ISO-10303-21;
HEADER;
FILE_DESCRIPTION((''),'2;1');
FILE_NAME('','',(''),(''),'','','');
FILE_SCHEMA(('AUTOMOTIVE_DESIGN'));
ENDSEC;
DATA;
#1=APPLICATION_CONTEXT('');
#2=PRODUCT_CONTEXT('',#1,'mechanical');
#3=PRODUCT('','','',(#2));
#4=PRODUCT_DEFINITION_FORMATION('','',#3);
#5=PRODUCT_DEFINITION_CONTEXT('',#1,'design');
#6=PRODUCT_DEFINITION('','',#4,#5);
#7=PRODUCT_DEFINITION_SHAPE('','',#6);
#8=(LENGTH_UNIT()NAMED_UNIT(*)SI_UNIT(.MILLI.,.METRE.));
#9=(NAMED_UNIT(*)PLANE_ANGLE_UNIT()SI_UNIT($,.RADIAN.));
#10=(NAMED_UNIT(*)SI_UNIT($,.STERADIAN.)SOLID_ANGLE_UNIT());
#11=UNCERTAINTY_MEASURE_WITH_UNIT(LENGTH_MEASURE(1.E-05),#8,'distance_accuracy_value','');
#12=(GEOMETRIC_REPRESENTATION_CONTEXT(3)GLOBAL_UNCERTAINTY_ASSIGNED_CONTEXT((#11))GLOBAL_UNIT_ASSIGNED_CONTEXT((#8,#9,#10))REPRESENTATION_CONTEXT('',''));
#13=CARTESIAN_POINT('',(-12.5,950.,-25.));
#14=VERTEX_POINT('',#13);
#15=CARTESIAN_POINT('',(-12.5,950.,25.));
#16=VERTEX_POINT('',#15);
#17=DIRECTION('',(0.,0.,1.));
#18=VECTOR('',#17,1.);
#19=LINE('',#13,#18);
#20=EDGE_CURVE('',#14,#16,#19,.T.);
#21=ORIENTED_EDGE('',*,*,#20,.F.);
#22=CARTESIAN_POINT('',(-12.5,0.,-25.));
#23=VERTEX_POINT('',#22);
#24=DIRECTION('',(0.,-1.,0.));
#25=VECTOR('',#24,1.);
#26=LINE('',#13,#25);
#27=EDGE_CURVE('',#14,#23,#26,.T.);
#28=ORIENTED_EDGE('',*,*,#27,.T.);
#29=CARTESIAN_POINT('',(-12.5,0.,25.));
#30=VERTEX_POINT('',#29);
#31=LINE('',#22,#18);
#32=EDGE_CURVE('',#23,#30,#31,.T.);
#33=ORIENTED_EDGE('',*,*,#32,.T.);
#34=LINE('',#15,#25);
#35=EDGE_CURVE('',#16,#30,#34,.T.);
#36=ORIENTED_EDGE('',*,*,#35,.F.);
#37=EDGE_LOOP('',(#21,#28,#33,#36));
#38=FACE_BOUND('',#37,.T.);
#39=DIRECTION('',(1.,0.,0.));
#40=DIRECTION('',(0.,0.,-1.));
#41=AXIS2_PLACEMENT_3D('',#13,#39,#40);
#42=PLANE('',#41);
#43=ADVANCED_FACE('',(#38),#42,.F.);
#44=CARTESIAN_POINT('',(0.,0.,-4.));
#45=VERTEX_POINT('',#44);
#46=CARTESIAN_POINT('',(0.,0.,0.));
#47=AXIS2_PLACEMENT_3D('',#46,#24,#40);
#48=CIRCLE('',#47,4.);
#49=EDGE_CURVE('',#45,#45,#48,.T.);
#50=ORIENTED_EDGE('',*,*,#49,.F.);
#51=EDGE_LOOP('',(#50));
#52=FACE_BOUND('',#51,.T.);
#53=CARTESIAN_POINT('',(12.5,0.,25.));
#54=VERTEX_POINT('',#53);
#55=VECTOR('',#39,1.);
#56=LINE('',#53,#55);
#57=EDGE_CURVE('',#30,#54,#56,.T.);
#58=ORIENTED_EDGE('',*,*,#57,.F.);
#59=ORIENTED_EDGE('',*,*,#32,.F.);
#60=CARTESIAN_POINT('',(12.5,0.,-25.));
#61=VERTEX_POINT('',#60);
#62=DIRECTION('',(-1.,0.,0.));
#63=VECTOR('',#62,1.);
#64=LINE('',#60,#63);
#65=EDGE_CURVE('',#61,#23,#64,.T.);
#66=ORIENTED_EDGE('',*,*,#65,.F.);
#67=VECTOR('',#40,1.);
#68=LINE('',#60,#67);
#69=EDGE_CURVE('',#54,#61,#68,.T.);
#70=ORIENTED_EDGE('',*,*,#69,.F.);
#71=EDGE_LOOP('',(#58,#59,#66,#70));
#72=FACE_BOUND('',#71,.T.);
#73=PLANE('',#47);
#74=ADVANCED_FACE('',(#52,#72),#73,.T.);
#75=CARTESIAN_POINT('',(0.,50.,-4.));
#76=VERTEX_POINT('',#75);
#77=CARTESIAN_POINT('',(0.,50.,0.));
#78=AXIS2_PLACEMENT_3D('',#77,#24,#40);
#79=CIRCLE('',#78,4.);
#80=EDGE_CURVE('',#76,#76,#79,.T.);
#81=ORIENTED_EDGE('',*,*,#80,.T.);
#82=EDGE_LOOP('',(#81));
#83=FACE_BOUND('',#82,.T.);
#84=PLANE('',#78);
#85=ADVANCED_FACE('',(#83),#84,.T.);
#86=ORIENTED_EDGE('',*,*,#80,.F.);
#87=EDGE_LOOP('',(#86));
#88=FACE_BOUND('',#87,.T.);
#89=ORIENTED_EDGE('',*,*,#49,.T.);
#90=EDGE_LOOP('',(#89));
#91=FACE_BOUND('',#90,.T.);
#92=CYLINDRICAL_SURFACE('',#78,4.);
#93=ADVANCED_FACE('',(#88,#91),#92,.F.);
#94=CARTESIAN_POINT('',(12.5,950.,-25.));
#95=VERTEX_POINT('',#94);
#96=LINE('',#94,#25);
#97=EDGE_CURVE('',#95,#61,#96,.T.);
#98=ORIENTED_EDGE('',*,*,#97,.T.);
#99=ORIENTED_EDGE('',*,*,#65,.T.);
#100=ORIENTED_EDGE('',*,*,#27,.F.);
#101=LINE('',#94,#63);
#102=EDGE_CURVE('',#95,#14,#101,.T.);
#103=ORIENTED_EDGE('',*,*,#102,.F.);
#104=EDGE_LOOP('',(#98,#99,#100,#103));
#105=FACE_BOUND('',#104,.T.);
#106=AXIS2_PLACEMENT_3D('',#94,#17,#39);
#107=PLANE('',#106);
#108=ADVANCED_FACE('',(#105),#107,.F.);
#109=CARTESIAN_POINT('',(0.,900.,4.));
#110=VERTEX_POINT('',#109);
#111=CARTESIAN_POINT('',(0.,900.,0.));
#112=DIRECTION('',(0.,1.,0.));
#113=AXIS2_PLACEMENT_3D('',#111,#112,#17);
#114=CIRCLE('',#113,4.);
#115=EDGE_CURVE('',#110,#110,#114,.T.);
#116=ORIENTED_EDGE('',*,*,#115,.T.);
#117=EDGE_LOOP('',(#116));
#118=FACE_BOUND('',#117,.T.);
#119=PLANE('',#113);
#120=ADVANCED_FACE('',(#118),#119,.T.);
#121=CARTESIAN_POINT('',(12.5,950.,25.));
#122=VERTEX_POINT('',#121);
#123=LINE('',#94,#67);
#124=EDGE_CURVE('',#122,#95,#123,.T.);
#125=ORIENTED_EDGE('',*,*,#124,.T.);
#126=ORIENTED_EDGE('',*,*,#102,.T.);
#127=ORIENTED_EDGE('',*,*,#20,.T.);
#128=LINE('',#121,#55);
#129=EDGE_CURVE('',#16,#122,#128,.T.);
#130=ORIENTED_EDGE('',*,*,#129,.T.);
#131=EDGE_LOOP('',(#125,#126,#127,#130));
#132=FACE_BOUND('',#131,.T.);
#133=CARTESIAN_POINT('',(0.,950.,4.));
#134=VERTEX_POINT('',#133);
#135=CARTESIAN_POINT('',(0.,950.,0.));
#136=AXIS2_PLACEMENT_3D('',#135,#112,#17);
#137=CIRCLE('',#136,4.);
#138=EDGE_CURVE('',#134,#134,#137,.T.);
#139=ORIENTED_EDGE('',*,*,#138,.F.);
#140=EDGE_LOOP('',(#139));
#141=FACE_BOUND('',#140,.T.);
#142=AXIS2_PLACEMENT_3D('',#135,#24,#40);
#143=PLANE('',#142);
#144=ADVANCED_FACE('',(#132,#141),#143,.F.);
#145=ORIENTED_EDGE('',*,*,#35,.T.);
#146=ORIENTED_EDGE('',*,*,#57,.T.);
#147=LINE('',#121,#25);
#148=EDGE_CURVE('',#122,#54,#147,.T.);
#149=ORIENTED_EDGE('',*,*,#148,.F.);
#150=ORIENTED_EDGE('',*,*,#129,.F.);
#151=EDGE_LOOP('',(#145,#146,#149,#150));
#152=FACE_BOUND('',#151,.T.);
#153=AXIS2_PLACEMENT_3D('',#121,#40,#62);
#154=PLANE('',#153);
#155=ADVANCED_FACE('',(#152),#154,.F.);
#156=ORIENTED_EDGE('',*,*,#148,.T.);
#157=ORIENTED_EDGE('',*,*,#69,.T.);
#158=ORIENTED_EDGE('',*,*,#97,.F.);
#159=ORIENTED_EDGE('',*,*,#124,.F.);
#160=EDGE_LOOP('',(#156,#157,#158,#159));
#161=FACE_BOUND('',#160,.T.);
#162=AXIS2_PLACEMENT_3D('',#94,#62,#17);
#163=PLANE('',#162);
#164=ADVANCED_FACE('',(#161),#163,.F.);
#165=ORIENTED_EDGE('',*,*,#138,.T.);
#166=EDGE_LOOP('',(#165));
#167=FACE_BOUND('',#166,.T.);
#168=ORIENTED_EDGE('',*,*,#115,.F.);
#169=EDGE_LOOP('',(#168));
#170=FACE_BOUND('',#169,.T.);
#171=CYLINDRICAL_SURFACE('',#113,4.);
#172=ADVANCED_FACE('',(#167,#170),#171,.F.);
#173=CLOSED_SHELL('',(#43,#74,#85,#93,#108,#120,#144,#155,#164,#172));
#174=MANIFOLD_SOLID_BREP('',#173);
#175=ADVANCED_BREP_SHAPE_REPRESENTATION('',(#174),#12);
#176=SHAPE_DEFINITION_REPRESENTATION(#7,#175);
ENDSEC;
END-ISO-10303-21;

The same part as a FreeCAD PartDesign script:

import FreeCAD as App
import Part
import Sketcher

V = App.Vector
Q = App.Units.Quantity

doc = App.newDocument("Part")
body = doc.addObject("PartDesign::Body", "Body")

sketch1 = doc.addObject("Sketcher::SketchObject", "Sketch")
body.addObject(sketch1)
sketch1.AttachmentSupport = (doc.XZ_Plane, [""])
sketch1.MapMode = "FlatFace"
sketch1.addGeometry([
    Part.LineSegment(V(-12.5, -25, 0), V(-12.5, 25, 0)),
    Part.LineSegment(V(-12.5, 25, 0), V(12.5, 25, 0)),
    Part.LineSegment(V(12.5, 25, 0), V(12.5, -25, 0)),
    Part.LineSegment(V(12.5, -25, 0), V(-12.5, -25, 0)),
], False)
sketch1.addConstraint([
    Sketcher.Constraint("Coincident", 0, 2, 1, 1),
    Sketcher.Constraint("Coincident", 1, 2, 2, 1),
    Sketcher.Constraint("Coincident", 2, 2, 3, 1),
    Sketcher.Constraint("Coincident", 3, 2, 0, 1),
    Sketcher.Constraint("Vertical", 0),
    Sketcher.Constraint("Horizontal", 1),
    Sketcher.Constraint("Vertical", 2),
    Sketcher.Constraint("Horizontal", 3),
    Sketcher.Constraint("Symmetric", 0, 2, 2, 2, -1, 1),
    Sketcher.Constraint("DistanceX", 1, 1, 1, 2, Q("25 mm")),
    Sketcher.Constraint("DistanceY", 0, 1, 0, 2, Q("50 mm")),
])
pad1 = doc.addObject("PartDesign::Pad", "Pad")
body.addObject(pad1)
pad1.Profile = sketch1
pad1.Length = 950
pad1.Reversed = True

sketch2 = doc.addObject("Sketcher::SketchObject", "Sketch001")
body.addObject(sketch2)
sketch2.AttachmentSupport = (doc.XZ_Plane, [""])
sketch2.MapMode = "FlatFace"
sketch2.addGeometry(Part.Circle(V(0, 0, 0), V(0, 0, 1), 4), False)
sketch2.addConstraint([
    Sketcher.Constraint("Coincident", 0, 3, -1, 1),
    Sketcher.Constraint("Diameter", 0, Q("8 mm")),
])
pocket1 = doc.addObject("PartDesign::Pocket", "Pocket")
body.addObject(pocket1)
pocket1.Profile = sketch2
pocket1.Length = 50

sketch3 = doc.addObject("Sketcher::SketchObject", "Sketch002")
body.addObject(sketch3)
sketch3.AttachmentSupport = (doc.XZ_Plane, [""])
sketch3.MapMode = "FlatFace"
sketch3.AttachmentOffset = App.Placement(V(0, 0, -900), App.Rotation())
sketch3.addGeometry(Part.Circle(V(0, 0, 0), V(0, 0, 1), 4), False)
sketch3.addConstraint([
    Sketcher.Constraint("Coincident", 0, 3, -1, 1),
    Sketcher.Constraint("Diameter", 0, Q("8 mm")),
])
pocket2 = doc.addObject("PartDesign::Pocket", "Pocket001")
body.addObject(pocket2)
pocket2.Profile = sketch3
pocket2.Length = 50

doc.recompute()
